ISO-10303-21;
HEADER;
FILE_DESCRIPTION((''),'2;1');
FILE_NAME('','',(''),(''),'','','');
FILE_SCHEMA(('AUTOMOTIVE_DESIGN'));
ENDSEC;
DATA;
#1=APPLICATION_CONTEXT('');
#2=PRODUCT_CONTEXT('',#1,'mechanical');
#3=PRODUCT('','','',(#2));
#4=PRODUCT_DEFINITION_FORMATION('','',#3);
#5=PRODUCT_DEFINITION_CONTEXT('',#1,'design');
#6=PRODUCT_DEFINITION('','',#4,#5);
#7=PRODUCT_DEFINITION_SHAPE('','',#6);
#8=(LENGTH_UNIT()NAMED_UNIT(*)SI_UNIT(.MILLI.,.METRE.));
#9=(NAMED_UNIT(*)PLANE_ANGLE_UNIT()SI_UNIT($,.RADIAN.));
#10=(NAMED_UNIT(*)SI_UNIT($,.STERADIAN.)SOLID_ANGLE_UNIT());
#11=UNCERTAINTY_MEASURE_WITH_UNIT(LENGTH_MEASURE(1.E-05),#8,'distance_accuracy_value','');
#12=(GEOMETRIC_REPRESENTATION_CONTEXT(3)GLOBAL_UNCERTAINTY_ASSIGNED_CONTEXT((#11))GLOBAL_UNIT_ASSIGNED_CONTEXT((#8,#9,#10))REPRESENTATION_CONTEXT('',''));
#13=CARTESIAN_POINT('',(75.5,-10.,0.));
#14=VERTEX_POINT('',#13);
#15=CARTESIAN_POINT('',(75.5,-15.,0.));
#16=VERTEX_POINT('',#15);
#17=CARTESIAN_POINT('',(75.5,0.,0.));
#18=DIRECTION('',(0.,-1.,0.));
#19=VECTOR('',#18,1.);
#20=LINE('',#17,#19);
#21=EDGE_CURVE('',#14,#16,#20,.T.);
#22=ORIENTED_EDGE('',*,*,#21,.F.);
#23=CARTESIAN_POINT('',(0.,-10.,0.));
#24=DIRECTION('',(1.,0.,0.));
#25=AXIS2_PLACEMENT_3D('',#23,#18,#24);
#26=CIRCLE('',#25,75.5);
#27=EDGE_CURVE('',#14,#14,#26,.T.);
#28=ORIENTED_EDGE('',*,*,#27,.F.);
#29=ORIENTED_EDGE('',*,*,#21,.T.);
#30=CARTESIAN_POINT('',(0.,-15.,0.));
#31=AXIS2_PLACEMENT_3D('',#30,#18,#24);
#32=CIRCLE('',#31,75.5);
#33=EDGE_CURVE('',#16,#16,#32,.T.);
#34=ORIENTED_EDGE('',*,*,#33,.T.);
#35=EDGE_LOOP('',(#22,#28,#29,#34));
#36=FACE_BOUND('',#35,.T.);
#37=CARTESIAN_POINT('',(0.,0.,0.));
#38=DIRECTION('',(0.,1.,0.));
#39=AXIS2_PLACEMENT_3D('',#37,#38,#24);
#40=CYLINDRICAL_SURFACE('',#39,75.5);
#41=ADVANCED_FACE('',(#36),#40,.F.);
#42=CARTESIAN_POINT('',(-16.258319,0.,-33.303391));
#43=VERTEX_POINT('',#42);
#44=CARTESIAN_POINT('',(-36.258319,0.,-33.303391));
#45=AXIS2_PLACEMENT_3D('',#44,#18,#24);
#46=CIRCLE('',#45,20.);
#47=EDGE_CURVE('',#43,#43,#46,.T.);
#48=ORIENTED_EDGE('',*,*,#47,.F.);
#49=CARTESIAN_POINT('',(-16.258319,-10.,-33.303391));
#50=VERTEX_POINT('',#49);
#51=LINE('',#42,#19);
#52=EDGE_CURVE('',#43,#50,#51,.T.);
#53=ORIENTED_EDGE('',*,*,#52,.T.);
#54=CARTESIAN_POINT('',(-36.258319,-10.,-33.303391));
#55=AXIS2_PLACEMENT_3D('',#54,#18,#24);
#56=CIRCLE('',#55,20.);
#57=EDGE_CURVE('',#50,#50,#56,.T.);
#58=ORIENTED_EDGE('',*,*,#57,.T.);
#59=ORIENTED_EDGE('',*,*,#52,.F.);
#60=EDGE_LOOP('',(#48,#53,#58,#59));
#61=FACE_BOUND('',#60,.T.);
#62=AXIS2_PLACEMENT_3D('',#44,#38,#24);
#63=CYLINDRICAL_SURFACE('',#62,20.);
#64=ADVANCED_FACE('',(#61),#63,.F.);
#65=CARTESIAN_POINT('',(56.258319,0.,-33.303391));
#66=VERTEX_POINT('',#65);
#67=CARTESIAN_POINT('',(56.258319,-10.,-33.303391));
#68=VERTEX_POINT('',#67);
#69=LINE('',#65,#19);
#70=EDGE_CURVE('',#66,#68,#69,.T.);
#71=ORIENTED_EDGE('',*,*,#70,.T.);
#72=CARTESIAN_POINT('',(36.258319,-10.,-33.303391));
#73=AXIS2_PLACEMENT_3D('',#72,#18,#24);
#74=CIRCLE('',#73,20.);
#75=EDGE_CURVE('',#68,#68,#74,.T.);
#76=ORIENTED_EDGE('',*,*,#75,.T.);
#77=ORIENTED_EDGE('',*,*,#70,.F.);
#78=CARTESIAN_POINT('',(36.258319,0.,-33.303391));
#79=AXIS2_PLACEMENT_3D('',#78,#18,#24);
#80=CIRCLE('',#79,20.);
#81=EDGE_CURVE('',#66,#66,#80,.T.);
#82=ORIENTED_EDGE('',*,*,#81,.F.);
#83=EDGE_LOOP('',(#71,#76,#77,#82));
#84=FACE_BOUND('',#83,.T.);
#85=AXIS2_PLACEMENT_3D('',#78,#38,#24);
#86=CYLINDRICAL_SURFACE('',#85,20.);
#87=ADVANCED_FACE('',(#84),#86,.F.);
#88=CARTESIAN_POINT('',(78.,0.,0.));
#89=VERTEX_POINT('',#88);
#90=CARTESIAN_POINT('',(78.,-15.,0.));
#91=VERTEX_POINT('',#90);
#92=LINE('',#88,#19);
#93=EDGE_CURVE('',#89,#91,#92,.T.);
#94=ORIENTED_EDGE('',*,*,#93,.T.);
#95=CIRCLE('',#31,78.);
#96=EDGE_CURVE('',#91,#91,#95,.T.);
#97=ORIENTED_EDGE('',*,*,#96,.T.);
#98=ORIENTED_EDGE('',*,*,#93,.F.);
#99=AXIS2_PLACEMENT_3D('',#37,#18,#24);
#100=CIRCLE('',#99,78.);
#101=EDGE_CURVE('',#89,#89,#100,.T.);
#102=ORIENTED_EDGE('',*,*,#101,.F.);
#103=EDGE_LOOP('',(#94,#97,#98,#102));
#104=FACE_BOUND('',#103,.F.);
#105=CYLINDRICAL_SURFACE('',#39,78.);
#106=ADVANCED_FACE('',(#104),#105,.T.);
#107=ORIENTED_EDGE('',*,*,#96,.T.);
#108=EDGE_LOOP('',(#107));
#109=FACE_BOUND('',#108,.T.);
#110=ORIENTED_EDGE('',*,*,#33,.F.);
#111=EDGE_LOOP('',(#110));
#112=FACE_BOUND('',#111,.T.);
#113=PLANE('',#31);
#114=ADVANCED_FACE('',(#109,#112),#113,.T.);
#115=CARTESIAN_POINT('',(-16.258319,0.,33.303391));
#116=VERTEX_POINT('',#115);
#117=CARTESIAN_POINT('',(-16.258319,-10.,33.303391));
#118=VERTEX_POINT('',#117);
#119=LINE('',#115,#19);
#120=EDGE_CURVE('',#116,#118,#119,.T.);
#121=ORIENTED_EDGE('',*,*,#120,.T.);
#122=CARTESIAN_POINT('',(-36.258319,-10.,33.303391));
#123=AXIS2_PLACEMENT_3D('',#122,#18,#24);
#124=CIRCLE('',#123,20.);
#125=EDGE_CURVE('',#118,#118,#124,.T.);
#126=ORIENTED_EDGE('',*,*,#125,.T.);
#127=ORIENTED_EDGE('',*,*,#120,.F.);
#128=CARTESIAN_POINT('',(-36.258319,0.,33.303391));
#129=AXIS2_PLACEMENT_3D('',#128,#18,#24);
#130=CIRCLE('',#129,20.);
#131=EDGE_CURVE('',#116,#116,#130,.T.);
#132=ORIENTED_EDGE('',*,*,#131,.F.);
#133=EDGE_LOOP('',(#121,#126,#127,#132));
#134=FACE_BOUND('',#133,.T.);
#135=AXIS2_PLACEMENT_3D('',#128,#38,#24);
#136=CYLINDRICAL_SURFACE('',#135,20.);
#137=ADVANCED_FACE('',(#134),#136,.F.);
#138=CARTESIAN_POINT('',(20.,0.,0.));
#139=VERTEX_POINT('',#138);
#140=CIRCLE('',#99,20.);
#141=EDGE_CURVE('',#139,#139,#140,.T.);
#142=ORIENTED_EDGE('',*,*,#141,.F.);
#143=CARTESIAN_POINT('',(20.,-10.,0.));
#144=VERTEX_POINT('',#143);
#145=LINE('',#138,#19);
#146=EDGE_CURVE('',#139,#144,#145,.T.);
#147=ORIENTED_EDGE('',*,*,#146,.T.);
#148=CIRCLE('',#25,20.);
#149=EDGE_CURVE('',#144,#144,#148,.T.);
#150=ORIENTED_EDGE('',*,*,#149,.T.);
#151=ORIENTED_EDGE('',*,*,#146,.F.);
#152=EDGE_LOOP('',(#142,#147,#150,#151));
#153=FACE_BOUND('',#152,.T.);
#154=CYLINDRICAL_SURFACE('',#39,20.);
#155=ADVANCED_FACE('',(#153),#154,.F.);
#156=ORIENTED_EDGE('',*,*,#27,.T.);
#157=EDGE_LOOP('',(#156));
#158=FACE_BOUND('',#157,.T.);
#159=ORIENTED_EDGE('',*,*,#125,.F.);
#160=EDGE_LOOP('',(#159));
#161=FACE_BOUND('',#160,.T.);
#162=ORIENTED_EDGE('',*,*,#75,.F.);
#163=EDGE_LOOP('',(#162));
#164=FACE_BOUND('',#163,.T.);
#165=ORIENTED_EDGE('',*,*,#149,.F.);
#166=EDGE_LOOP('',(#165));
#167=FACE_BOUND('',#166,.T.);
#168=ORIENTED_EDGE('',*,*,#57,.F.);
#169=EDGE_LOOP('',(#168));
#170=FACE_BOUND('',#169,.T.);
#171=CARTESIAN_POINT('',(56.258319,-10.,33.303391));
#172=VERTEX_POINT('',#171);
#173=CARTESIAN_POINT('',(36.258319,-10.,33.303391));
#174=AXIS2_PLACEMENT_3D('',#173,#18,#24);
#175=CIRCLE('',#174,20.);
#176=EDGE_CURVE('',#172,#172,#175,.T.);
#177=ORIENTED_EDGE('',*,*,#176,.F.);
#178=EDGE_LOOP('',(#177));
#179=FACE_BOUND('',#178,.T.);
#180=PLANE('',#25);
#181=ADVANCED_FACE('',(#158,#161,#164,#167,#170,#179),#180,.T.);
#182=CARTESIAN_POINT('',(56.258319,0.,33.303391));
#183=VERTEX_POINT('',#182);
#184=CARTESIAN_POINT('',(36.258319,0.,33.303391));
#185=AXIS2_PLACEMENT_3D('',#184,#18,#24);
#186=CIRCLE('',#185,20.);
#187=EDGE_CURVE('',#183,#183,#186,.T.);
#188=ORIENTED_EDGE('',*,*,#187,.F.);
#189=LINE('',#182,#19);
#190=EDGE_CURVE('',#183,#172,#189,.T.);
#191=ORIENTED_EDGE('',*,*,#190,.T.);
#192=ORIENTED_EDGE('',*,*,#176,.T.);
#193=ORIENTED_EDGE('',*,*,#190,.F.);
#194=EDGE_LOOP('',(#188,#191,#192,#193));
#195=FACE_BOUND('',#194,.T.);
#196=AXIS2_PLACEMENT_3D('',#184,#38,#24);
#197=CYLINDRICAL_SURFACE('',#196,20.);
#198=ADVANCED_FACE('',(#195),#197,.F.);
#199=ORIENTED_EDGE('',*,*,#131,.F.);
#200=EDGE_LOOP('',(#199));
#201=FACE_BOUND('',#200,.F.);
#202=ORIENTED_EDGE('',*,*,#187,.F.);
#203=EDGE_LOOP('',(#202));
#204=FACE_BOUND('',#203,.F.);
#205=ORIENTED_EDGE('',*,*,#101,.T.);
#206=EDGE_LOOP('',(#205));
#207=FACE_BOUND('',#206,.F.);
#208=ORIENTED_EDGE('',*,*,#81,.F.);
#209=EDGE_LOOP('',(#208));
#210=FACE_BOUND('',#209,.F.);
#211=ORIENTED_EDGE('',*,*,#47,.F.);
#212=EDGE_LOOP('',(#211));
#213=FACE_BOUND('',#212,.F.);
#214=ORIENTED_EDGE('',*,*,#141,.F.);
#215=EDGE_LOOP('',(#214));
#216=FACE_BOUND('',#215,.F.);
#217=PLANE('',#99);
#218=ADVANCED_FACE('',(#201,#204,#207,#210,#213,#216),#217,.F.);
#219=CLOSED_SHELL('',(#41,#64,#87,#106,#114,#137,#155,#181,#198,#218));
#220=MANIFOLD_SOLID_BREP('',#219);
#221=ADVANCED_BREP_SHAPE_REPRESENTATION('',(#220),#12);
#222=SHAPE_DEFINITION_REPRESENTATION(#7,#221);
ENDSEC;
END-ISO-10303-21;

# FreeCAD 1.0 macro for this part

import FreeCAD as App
import Part
import Sketcher
Q = App.Units.Quantity

doc = App.newDocument("Part")
params = doc.addObject("Spreadsheet::Sheet", "Params")
for row, (alias, value) in enumerate([
    ("sketch1_diameter", "151 mm"),
    ("sketch1_diameter2", "40 mm"),
    ("pad1_length", "10 mm"),
    ("sketch2_diameter", "156 mm"),
    ("sketch2_diameter2", "151 mm"),
    ("pad2_length", "15 mm"),
], start=1):
    params.set(f"A{row}", alias)
    params.set(f"B{row}", "=" + value)
    params.setAlias(f"B{row}", alias)

body = doc.addObject("PartDesign::Body", "Body")

sketch1 = body.newObject("Sketcher::SketchObject", "Sketch")
sketch1.AttachmentSupport = (doc.getObject("XZ_Plane"), [""])
sketch1.MapMode = "FlatFace"
sketch1.addGeometry(Part.Circle(App.Vector(0, 0, 0), App.Vector(0, 0, 1), 76), False)
sketch1.addGeometry(Part.Circle(App.Vector(-36, -33, 0), App.Vector(0, 0, 1), 20), False)
sketch1.addGeometry(Part.Circle(App.Vector(36, -33, 0), App.Vector(0, 0, 1), 20), False)
sketch1.addGeometry(Part.Circle(App.Vector(0, 0, 0), App.Vector(0, 0, 1), 20), False)
sketch1.addGeometry(Part.Circle(App.Vector(-36, 33, 0), App.Vector(0, 0, 1), 20), False)
sketch1.addGeometry(Part.Circle(App.Vector(36, 33, 0), App.Vector(0, 0, 1), 20), False)
sketch1.addConstraint(Sketcher.Constraint("Coincident", 0, 3, -1, 1))
sketch1.addConstraint(Sketcher.Constraint("Coincident", 3, 3, -1, 1))
sketch1.addConstraint(Sketcher.Constraint("Equal", 1, 2))
sketch1.addConstraint(Sketcher.Constraint("Equal", 2, 3))
sketch1.addConstraint(Sketcher.Constraint("Equal", 3, 4))
sketch1.addConstraint(Sketcher.Constraint("Equal", 4, 5))
sketch1.addConstraint(Sketcher.Constraint("Symmetric", 2, 3, 4, 3, -1, 1))
sketch1.addConstraint(Sketcher.Constraint("Symmetric", 1, 3, 5, 3, -1, 1))
sketch1.addConstraint(Sketcher.Constraint("Symmetric", 1, 3, 2, 3, -2))
sketch1.addConstraint(Sketcher.Constraint("Diameter", 0, Q("151 mm")))
sketch1.addConstraint(Sketcher.Constraint("Diameter", 1, Q("40 mm")))
sketch1.addConstraint(Sketcher.Constraint("DistanceX", 1, 3, -1, 1, Q("36.258319 mm")))
sketch1.addConstraint(Sketcher.Constraint("DistanceY", 1, 3, -1, 1, Q("33.303391 mm")))
sketch1.setExpression("Constraints[9]", "Params.sketch1_diameter")
sketch1.setExpression("Constraints[10]", "Params.sketch1_diameter2")
pad1 = body.newObject("PartDesign::Pad", "Pad")
pad1.Profile = sketch1
pad1.setExpression("Length", "Params.pad1_length")

sketch2 = body.newObject("Sketcher::SketchObject", "Sketch001")
sketch2.AttachmentSupport = (doc.getObject("XZ_Plane"), [""])
sketch2.MapMode = "FlatFace"
sketch2.addGeometry(Part.Circle(App.Vector(0, 0, 0), App.Vector(0, 0, 1), 78), False)
sketch2.addGeometry(Part.Circle(App.Vector(0, 0, 0), App.Vector(0, 0, 1), 76), False)
sketch2.addConstraint(Sketcher.Constraint("Coincident", 0, 3, -1, 1))
sketch2.addConstraint(Sketcher.Constraint("Coincident", 1, 3, -1, 1))
sketch2.addConstraint(Sketcher.Constraint("Diameter", 0, Q("156 mm")))
sketch2.addConstraint(Sketcher.Constraint("Diameter", 1, Q("151 mm")))
sketch2.setExpression("Constraints[2]", "Params.sketch2_diameter")
sketch2.setExpression("Constraints[3]", "Params.sketch2_diameter2")
pad2 = body.newObject("PartDesign::Pad", "Pad001")
pad2.Profile = sketch2
pad2.setExpression("Length", "Params.pad2_length")

doc.recompute()
